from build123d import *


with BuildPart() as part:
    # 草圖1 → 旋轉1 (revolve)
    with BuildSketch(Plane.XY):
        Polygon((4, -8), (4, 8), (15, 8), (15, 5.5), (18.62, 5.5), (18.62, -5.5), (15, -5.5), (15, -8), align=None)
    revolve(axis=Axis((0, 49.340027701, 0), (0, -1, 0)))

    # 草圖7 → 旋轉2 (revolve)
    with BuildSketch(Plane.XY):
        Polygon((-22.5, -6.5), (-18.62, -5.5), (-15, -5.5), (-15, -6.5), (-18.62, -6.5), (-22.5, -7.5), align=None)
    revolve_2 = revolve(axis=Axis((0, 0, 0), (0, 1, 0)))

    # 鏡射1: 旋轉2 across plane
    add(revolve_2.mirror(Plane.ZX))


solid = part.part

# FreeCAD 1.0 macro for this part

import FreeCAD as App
import Part
import Sketcher

V = App.Vector
Q = App.Units.Quantity


def add_polygon(sketch, points):
    """Adds a closed chain of lines whose ends are joined by coincident constraints."""
    first, n = sketch.GeometryCount, len(points)
    for a, b in zip(points, points[1:] + points[:1]):
        sketch.addGeometry(Part.LineSegment(App.Vector(*a, 0), App.Vector(*b, 0)), False)
    for i in range(n):
        sketch.addConstraint(Sketcher.Constraint("Coincident", first + i, 2, first + (i + 1) % n, 1))

doc = App.newDocument("Part")
body = doc.addObject("PartDesign::Body", "Body")

# Sketch on XY plane
sketch1 = body.newObject("Sketcher::SketchObject", "Sketch")
sketch1.AttachmentSupport = (doc.getObject("XY_Plane"), [""])
sketch1.MapMode = "FlatFace"
add_polygon(sketch1, [(4, 8), (4, -8), (15, -8), (15, -5.5), (18.6, -5.5), (18.6, 5.5), (15, 5.5), (15, 8)])  # lines 0-7
sketch1.addConstraint([
    Sketcher.Constraint("Vertical", 0),
    Sketcher.Constraint("Horizontal", 1),
    Sketcher.Constraint("Vertical", 2),
    Sketcher.Constraint("Horizontal", 3),
    Sketcher.Constraint("Vertical", 4),
    Sketcher.Constraint("Horizontal", 5),
    Sketcher.Constraint("Vertical", 6),
    Sketcher.Constraint("Horizontal", 7),
    Sketcher.Constraint("Symmetric", 2, 2, 5, 2, -1),
    Sketcher.Constraint("Equal", 7, 4),
    Sketcher.Constraint("Equal", 2, 6),
    Sketcher.Constraint("DistanceX", 1, 1, 1, 2, Q("11 mm")),
    Sketcher.Constraint("DistanceY", 0, 2, 0, 1, Q("16 mm")),
    Sketcher.Constraint("DistanceX", -1, 1, 0, 2, Q("4 mm")),
    Sketcher.Constraint("DistanceX", 3, 1, 3, 2, Q("3.62 mm")),
])
revolution = body.newObject("PartDesign::Revolution", "Revolution")
revolution.Profile = sketch1
revolution.ReferenceAxis = (sketch1, ["V_Axis"])
revolution.Angle = 360

# Sketch on XY plane
sketch2 = body.newObject("Sketcher::SketchObject", "Sketch001")
sketch2.AttachmentSupport = (doc.getObject("XY_Plane"), [""])
sketch2.MapMode = "FlatFace"
add_polygon(sketch2, [(-18.6, -5.5), (-22.5, -6.5), (-22.5, -7.5), (-18.6, -6.5), (-15, -6.5), (-15, -5.5)])  # lines 0-5
sketch2.addConstraint([
    Sketcher.Constraint("Vertical", 1),
    Sketcher.Constraint("Horizontal", 3),
    Sketcher.Constraint("Vertical", 4),
    Sketcher.Constraint("Horizontal", 5),
    Sketcher.Constraint("Parallel", 0, 2),
    Sketcher.Constraint("Horizontal", 0, 2, 2, 2),
    Sketcher.Constraint("Vertical", 2, 2, 5, 2),
    Sketcher.Constraint("DistanceY", 1, 2, 1, 1, Q("1 mm")),
    Sketcher.Constraint("DistanceX", 3, 2, -1, 1, Q("15 mm")),
    Sketcher.Constraint("DistanceX", 3, 1, 3, 2, Q("3.62 mm")),
    Sketcher.Constraint("DistanceX", 0, 2, -1, 1, Q("22.5 mm")),
    Sketcher.Constraint("DistanceY", 0, 2, -1, 1, Q("6.5 mm")),
])
revolution2 = body.newObject("PartDesign::Revolution", "Revolution001")
revolution2.Profile = sketch2
revolution2.ReferenceAxis = (sketch2, ["V_Axis"])
revolution2.Angle = 360
doc.recompute()

mirrored = body.newObject("PartDesign::Mirrored", "Mirrored")
mirrored.Originals = [revolution2]
mirrored.MirrorPlane = (doc.getObject("XZ_Plane"), [""])
body.Tip = mirrored

doc.recompute()
